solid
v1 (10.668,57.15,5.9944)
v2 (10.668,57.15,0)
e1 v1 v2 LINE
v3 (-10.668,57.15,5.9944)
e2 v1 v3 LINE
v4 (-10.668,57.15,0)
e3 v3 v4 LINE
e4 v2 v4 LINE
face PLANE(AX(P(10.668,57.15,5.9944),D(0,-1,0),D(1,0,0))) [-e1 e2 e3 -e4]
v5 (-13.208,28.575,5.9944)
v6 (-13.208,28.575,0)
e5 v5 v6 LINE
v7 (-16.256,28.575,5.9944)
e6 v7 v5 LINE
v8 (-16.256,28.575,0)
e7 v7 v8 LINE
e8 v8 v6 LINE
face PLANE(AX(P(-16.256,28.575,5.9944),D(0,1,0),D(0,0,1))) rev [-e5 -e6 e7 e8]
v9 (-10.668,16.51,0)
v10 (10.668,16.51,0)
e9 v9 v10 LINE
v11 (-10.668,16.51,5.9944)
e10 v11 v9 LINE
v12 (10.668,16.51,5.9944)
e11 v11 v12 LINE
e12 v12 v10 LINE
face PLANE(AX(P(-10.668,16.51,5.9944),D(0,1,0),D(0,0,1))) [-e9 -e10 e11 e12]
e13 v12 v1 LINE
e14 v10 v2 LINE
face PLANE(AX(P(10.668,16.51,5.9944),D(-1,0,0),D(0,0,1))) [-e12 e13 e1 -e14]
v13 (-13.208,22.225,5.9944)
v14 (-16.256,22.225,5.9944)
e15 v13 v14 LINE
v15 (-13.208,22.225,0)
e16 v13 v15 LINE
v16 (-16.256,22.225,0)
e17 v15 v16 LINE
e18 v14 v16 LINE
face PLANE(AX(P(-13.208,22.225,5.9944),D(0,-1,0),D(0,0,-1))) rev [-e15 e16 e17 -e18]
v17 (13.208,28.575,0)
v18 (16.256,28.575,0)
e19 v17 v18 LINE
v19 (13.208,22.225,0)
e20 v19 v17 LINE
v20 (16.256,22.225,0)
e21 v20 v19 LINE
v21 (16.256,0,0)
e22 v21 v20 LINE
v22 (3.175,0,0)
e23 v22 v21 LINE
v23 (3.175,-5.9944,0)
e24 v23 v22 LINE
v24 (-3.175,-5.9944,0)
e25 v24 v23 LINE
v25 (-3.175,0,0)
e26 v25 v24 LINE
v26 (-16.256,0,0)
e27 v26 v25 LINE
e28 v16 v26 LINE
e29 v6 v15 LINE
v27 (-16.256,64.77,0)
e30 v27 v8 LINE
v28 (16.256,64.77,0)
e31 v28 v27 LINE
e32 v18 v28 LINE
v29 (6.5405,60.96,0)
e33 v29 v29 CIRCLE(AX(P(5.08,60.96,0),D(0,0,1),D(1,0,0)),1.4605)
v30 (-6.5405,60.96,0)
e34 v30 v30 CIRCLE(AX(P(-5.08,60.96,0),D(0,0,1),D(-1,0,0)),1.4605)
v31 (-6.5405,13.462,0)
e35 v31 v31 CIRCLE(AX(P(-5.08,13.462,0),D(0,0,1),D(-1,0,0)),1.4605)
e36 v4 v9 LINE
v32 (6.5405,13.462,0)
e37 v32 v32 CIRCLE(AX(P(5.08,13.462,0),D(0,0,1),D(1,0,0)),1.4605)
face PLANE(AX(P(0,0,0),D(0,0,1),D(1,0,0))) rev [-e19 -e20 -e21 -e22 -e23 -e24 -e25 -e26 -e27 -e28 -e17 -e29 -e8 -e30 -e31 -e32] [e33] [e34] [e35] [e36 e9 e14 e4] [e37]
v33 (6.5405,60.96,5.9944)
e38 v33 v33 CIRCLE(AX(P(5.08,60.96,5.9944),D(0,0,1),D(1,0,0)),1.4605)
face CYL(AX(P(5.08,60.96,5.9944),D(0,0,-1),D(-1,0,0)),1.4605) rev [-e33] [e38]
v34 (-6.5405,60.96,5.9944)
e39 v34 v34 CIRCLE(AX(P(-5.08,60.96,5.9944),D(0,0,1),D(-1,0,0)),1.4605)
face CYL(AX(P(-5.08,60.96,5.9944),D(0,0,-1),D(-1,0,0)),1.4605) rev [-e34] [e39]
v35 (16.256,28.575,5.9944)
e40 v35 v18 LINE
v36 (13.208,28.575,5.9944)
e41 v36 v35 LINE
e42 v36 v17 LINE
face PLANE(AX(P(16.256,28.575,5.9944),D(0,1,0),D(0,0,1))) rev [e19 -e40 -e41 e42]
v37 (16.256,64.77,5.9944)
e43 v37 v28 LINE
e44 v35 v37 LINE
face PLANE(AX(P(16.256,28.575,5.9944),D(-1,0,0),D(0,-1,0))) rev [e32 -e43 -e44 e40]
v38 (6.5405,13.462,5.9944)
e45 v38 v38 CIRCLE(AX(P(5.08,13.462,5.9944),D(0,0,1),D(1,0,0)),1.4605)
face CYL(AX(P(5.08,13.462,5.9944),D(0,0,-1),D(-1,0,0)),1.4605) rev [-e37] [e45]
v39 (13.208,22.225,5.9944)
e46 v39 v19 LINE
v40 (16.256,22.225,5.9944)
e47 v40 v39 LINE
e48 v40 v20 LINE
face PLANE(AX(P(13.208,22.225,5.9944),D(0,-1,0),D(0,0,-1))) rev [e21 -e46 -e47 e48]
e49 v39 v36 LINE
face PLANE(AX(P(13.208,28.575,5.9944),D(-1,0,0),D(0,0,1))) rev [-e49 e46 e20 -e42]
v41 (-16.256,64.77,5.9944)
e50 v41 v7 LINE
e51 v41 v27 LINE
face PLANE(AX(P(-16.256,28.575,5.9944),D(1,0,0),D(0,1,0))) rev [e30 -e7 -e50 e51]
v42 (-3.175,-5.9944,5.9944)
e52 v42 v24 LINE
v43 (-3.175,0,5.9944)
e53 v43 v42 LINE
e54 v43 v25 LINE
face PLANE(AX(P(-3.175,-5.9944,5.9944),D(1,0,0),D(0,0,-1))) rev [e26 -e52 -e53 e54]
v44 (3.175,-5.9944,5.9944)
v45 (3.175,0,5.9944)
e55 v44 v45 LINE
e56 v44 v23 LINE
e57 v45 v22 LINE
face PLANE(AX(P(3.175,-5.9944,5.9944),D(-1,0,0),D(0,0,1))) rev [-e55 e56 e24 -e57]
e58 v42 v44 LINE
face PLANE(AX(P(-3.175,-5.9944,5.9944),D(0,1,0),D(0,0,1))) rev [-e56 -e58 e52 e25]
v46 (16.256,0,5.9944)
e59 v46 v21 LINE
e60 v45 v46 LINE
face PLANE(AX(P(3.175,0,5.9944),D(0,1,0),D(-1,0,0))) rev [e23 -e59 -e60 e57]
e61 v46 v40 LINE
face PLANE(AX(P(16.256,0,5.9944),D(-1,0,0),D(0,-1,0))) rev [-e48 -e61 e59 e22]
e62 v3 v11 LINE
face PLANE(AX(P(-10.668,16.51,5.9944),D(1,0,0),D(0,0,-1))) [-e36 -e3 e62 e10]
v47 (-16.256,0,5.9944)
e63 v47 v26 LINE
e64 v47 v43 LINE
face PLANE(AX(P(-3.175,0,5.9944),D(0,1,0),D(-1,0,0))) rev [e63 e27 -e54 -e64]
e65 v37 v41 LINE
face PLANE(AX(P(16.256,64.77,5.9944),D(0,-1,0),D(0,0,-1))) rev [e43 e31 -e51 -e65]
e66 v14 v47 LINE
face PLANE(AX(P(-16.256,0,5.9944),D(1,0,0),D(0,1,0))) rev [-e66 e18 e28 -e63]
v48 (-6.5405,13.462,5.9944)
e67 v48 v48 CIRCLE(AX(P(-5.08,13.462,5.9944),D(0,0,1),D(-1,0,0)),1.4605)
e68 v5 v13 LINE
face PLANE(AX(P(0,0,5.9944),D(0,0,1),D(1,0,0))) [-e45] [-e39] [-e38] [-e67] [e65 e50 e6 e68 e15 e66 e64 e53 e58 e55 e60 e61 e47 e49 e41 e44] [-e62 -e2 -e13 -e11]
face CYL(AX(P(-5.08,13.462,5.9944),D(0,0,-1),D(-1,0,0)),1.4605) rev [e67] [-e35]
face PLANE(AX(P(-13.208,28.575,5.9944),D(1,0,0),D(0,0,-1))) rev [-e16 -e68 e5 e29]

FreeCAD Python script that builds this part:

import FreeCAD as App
import Part
import Sketcher

V = App.Vector
Q = App.Units.Quantity

doc = App.newDocument("Part")
body = doc.addObject("PartDesign::Body", "Body")

sketch1 = body.newObject("Sketcher::SketchObject", "Sketch")
sketch1.AttachmentSupport = (doc.getObject("XY_Plane"), [""])
sketch1.MapMode = "FlatFace"
sketch1.addGeometry(Part.LineSegment(V(-3.175, -5.9944, 0), V(3.175, -5.9944, 0)), False)
sketch1.addGeometry(Part.LineSegment(V(3.175, -5.9944, 0), V(3.175, 0, 0)), False)
sketch1.addGeometry(Part.LineSegment(V(3.175, 0, 0), V(16.256, 0, 0)), False)
sketch1.addGeometry(Part.LineSegment(V(16.256, 0, 0), V(16.256, 22.225, 0)), False)
sketch1.addGeometry(Part.LineSegment(V(16.256, 22.225, 0), V(13.208, 22.225, 0)), False)
sketch1.addGeometry(Part.LineSegment(V(13.208, 22.225, 0), V(13.208, 28.575, 0)), False)
sketch1.addGeometry(Part.LineSegment(V(13.208, 28.575, 0), V(16.256, 28.575, 0)), False)
sketch1.addGeometry(Part.LineSegment(V(16.256, 28.575, 0), V(16.256, 64.77, 0)), False)
sketch1.addGeometry(Part.LineSegment(V(16.256, 64.77, 0), V(-16.256, 64.77, 0)), False)
sketch1.addGeometry(Part.LineSegment(V(-16.256, 64.77, 0), V(-16.256, 28.575, 0)), False)
sketch1.addGeometry(Part.LineSegment(V(-16.256, 28.575, 0), V(-13.208, 28.575, 0)), False)
sketch1.addGeometry(Part.LineSegment(V(-13.208, 28.575, 0), V(-13.208, 22.225, 0)), False)
sketch1.addGeometry(Part.LineSegment(V(-13.208, 22.225, 0), V(-16.256, 22.225, 0)), False)
sketch1.addGeometry(Part.LineSegment(V(-16.256, 22.225, 0), V(-16.256, 0, 0)), False)
sketch1.addGeometry(Part.LineSegment(V(-16.256, 0, 0), V(-3.175, 0, 0)), False)
sketch1.addGeometry(Part.LineSegment(V(-3.175, 0, 0), V(-3.175, -5.9944, 0)), False)
sketch1.addGeometry(Part.Circle(V(-5.08, 13.462, 0), V(0, 0, 1), 1.4605), False)
sketch1.addGeometry(Part.Circle(V(5.08, 13.462, 0), V(0, 0, 1), 1.4605), False)
sketch1.addGeometry(Part.LineSegment(V(10.668, 16.51, 0), V(-10.668, 16.51, 0)), False)
sketch1.addGeometry(Part.LineSegment(V(-10.668, 16.51, 0), V(-10.668, 57.15, 0)), False)
sketch1.addGeometry(Part.LineSegment(V(-10.668, 57.15, 0), V(10.668, 57.15, 0)), False)
sketch1.addGeometry(Part.LineSegment(V(10.668, 57.15, 0), V(10.668, 16.51, 0)), False)
sketch1.addGeometry(Part.Circle(V(-5.08, 60.96, 0), V(0, 0, 1), 1.4605), False)
sketch1.addGeometry(Part.Circle(V(5.08, 60.96, 0), V(0, 0, 1), 1.4605), False)
sketch1.addConstraint(Sketcher.Constraint("Coincident", 0, 2, 1, 1))
sketch1.addConstraint(Sketcher.Constraint("Coincident", 1, 2, 2, 1))
sketch1.addConstraint(Sketcher.Constraint("Coincident", 2, 2, 3, 1))
sketch1.addConstraint(Sketcher.Constraint("Coincident", 3, 2, 4, 1))
sketch1.addConstraint(Sketcher.Constraint("Coincident", 4, 2, 5, 1))
sketch1.addConstraint(Sketcher.Constraint("Coincident", 5, 2, 6, 1))
sketch1.addConstraint(Sketcher.Constraint("Coincident", 6, 2, 7, 1))
sketch1.addConstraint(Sketcher.Constraint("Coincident", 7, 2, 8, 1))
sketch1.addConstraint(Sketcher.Constraint("Coincident", 8, 2, 9, 1))
sketch1.addConstraint(Sketcher.Constraint("Coincident", 9, 2, 10, 1))
sketch1.addConstraint(Sketcher.Constraint("Coincident", 10, 2, 11, 1))
sketch1.addConstraint(Sketcher.Constraint("Coincident", 11, 2, 12, 1))
sketch1.addConstraint(Sketcher.Constraint("Coincident", 12, 2, 13, 1))
sketch1.addConstraint(Sketcher.Constraint("Coincident", 13, 2, 14, 1))
sketch1.addConstraint(Sketcher.Constraint("Coincident", 14, 2, 15, 1))
sketch1.addConstraint(Sketcher.Constraint("Coincident", 15, 2, 0, 1))
sketch1.addConstraint(Sketcher.Constraint("Coincident", 18, 2, 19, 1))
sketch1.addConstraint(Sketcher.Constraint("Coincident", 19, 2, 20, 1))
sketch1.addConstraint(Sketcher.Constraint("Coincident", 20, 2, 21, 1))
sketch1.addConstraint(Sketcher.Constraint("Coincident", 21, 2, 18, 1))
sketch1.addConstraint(Sketcher.Constraint("Horizontal", 0))
sketch1.addConstraint(Sketcher.Constraint("Vertical", 1))
sketch1.addConstraint(Sketcher.Constraint("Horizontal", 2))
sketch1.addConstraint(Sketcher.Constraint("Vertical", 3))
sketch1.addConstraint(Sketcher.Constraint("Horizontal", 4))
sketch1.addConstraint(Sketcher.Constraint("Vertical", 5))
sketch1.addConstraint(Sketcher.Constraint("Horizontal", 6))
sketch1.addConstraint(Sketcher.Constraint("Vertical", 7))
sketch1.addConstraint(Sketcher.Constraint("Horizontal", 8))
sketch1.addConstraint(Sketcher.Constraint("Vertical", 9))
sketch1.addConstraint(Sketcher.Constraint("Horizontal", 10))
sketch1.addConstraint(Sketcher.Constraint("Vertical", 11))
sketch1.addConstraint(Sketcher.Constraint("Horizontal", 12))
sketch1.addConstraint(Sketcher.Constraint("Vertical", 13))
sketch1.addConstraint(Sketcher.Constraint("Horizontal", 14))
sketch1.addConstraint(Sketcher.Constraint("Vertical", 15))
sketch1.addConstraint(Sketcher.Constraint("Horizontal", 18))
sketch1.addConstraint(Sketcher.Constraint("Vertical", 19))
sketch1.addConstraint(Sketcher.Constraint("Horizontal", 20))
sketch1.addConstraint(Sketcher.Constraint("Vertical", 21))
sketch1.addConstraint(Sketcher.Constraint("Equal", 16, 17))
sketch1.addConstraint(Sketcher.Constraint("Equal", 17, 22))
sketch1.addConstraint(Sketcher.Constraint("Equal", 22, 23))
sketch1.addConstraint(Sketcher.Constraint("Symmetric", 2, 2, 13, 2, -1, 1))
sketch1.addConstraint(Sketcher.Constraint("Symmetric", 16, 3, 17, 3, -2))
sketch1.addConstraint(Sketcher.Constraint("Symmetric", 22, 3, 23, 3, -2))
sketch1.addConstraint(Sketcher.Constraint("Symmetric", 6, 2, 9, 2, -2))
sketch1.addConstraint(Sketcher.Constraint("Symmetric", 4, 2, 11, 2, -2))
sketch1.addConstraint(Sketcher.Constraint("Symmetric", 1, 2, 14, 2, -2))
sketch1.addConstraint(Sketcher.Constraint("Vertical", 16, 3, 22, 3))
sketch1.addConstraint(Sketcher.Constraint("Vertical", 3, 2, 6, 2))
sketch1.addConstraint(Sketcher.Constraint("Equal", 0, 5))
sketch1.addConstraint(Sketcher.Constraint("Diameter", 16, Q("0.115 in")))
sketch1.addConstraint(Sketcher.Constraint("DistanceY", 19, 1, 19, 2, Q("1.6 in")))
sketch1.addConstraint(Sketcher.Constraint("DistanceX", 0, 1, 0, 2, Q("0.25 in")))
sketch1.addConstraint(Sketcher.Constraint("DistanceX", 4, 2, 4, 1, Q("0.12 in")))
sketch1.addConstraint(Sketcher.Constraint("DistanceX", 8, 2, 8, 1, Q("1.28 in")))
sketch1.addConstraint(Sketcher.Constraint("DistanceX", 18, 2, 18, 1, Q("0.84 in")))
sketch1.addConstraint(Sketcher.Constraint("DistanceX", 16, 3, -1, 1, Q("0.2 in")))
sketch1.addConstraint(Sketcher.Constraint("DistanceY", -1, 1, 22, 3, Q("2.4 in")))
sketch1.addConstraint(Sketcher.Constraint("DistanceX", 11, 2, 18, 2, Q("0.1 in")))
sketch1.addConstraint(Sketcher.Constraint("DistanceY", 19, 2, 8, 2, Q("0.3 in")))
sketch1.addConstraint(Sketcher.Constraint("DistanceY", 1, 1, 1, 2, Q("0.236 in")))
sketch1.addConstraint(Sketcher.Constraint("DistanceY", 3, 1, 3, 2, Q("0.875 in")))
sketch1.addConstraint(Sketcher.Constraint("DistanceY", 7, 1, 7, 2, Q("1.425 in")))
sketch1.addConstraint(Sketcher.Constraint("DistanceY", -1, 1, 16, 3, Q("0.53 in")))
pad1 = body.newObject("PartDesign::Pad", "Pad")
pad1.Profile = sketch1
pad1.Length = Q("0.236 in")

doc.recompute()
